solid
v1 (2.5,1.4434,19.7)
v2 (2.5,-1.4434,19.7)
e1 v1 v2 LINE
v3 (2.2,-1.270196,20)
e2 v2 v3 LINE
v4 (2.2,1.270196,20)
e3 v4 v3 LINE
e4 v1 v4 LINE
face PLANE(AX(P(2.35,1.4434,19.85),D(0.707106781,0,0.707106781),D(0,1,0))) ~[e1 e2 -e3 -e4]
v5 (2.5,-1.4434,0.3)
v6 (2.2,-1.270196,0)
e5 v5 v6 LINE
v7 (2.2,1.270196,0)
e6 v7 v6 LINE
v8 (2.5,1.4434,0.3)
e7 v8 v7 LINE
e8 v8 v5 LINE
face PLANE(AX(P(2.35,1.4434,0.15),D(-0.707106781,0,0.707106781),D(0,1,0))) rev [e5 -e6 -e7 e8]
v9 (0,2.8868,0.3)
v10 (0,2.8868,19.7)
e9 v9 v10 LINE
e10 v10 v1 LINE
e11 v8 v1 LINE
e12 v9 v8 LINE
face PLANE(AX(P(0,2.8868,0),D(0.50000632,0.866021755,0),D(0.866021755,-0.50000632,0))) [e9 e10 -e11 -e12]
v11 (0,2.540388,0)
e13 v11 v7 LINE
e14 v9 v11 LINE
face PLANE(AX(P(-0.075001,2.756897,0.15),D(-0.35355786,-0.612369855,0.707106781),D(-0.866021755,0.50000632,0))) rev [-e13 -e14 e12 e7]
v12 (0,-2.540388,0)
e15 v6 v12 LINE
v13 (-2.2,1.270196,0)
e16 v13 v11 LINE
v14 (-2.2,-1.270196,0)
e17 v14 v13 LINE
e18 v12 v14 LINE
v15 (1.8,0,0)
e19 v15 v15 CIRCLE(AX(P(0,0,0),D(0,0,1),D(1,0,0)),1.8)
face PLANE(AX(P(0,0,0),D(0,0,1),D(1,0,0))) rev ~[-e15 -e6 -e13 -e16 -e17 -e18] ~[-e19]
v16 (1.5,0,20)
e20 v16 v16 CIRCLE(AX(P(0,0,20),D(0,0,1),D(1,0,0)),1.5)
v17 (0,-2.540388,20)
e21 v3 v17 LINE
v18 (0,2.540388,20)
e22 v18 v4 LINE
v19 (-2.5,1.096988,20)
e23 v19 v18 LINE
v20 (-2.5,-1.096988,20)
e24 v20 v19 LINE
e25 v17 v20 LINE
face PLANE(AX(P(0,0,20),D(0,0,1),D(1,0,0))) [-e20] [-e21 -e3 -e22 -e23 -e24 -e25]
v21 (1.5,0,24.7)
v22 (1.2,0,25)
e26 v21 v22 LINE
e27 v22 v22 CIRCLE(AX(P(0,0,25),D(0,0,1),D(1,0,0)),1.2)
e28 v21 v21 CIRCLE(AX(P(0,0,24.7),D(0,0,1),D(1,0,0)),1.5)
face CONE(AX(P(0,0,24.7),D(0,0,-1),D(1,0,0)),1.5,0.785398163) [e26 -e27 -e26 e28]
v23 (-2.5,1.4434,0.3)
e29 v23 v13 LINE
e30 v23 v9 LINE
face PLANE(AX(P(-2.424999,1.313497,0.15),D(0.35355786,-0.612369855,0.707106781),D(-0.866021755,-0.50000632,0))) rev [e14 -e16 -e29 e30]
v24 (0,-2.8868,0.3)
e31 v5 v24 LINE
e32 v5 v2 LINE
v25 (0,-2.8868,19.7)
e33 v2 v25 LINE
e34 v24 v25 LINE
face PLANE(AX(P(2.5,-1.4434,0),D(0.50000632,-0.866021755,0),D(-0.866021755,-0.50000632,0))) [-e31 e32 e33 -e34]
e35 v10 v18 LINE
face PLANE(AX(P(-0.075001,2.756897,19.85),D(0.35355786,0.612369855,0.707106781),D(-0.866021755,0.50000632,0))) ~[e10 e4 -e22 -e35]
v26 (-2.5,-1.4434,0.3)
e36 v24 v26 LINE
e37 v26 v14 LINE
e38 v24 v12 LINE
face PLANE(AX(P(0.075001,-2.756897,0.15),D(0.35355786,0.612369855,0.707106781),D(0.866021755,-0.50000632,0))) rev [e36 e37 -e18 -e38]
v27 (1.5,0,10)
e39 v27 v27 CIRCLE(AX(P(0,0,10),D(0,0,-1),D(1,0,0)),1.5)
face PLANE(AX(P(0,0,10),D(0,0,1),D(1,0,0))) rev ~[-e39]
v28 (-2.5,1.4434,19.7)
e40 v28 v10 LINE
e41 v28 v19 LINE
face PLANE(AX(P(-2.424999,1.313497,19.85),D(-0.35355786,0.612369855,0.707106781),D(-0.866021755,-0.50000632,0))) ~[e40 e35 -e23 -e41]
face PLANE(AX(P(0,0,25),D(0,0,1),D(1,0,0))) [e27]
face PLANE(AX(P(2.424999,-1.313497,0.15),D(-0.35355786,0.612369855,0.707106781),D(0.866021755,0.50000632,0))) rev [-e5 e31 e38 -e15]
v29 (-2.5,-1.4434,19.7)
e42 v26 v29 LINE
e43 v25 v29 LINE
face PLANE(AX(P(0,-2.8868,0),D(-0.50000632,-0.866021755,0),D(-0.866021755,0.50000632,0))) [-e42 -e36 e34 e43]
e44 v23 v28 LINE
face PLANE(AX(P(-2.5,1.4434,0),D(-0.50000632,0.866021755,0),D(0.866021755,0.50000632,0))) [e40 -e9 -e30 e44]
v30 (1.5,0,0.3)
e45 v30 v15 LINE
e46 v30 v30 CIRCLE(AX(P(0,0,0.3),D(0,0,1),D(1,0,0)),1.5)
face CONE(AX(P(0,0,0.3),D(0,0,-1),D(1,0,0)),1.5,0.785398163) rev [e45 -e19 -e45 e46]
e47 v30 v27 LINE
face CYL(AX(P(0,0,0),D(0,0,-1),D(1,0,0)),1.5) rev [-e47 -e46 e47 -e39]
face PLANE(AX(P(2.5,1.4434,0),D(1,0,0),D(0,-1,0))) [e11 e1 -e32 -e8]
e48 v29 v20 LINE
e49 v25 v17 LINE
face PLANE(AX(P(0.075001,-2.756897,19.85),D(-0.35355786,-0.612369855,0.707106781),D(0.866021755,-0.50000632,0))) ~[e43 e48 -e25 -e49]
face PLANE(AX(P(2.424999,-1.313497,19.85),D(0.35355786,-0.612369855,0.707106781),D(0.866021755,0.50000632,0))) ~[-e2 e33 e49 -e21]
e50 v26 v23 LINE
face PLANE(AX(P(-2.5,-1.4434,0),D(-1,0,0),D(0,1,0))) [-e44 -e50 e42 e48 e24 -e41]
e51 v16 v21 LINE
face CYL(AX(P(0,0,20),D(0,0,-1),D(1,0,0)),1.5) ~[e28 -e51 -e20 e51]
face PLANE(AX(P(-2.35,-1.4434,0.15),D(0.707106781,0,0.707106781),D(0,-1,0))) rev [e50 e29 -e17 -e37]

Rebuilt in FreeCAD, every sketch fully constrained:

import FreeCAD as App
import Part
import Sketcher
from FreeCAD import Vector
Q = App.Units.Quantity


def edges_at(feature, points):
    """Names of the edges that pass closest to the given points."""
    edges = feature.Shape.Edges
    near = lambda p: min(range(len(edges)), key=lambda i: edges[i].distToShape(Part.Vertex(*p))[0])
    return sorted({f"Edge{near(p) + 1}" for p in points})


def add_polygon(sketch, points):
    """Adds a closed chain of lines whose ends are joined by coincident constraints."""
    first, n = sketch.GeometryCount, len(points)
    for a, b in zip(points, points[1:] + points[:1]):
        sketch.addGeometry(Part.LineSegment(App.Vector(*a, 0), App.Vector(*b, 0)), False)
    for i in range(n):
        sketch.addConstraint(Sketcher.Constraint("Coincident", first + i, 2, first + (i + 1) % n, 1))

doc = App.newDocument("Part")
body = doc.addObject("PartDesign::Body", "Body")

sketch1 = body.newObject("Sketcher::SketchObject", "Sketch")
sketch1.AttachmentSupport = (doc.getObject("XY_Plane"), [""])
sketch1.MapMode = "FlatFace"
add_polygon(sketch1, [(2.5, 1.4), (0, 2.9), (-2.5, 1.4), (-2.5, -1.4), (0, -2.9), (2.5, -1.4)])
sketch1.addGeometry(Part.Circle(Vector(0, 0, 0), Vector(0, 0, 1), 1.5), False)
sketch1.addConstraint([
    Sketcher.Constraint("Vertical", 2),
    Sketcher.Constraint("Vertical", 5),
    Sketcher.Constraint("Coincident", 6, 3, -1, 1),
    Sketcher.Constraint("Symmetric", 0, 2, 3, 2, -1, 1),
    Sketcher.Constraint("Symmetric", 1, 2, 4, 2, -1, 1),
    Sketcher.Constraint("PointOnObject", 0, 2, -2),
    Sketcher.Constraint("Parallel", 0, 3),
    Sketcher.Constraint("Horizontal", 2, 2, 4, 2),
    Sketcher.Constraint("Diameter", 6, 3.0),
    Sketcher.Constraint("DistanceX", 2, 2, 4, 2, 5.0),
    Sketcher.Constraint("Angle", 0, Q("149.9996 deg")),
    Sketcher.Constraint("DistanceY", 2, 2, 2, 1, 2.8868),
])
pad1 = body.newObject("PartDesign::Pad", "Pad")
pad1.Profile = sketch1
pad1.Length = 20
doc.recompute()

chamfer = body.newObject("PartDesign::Chamfer", "Chamfer")
chamfer.Base = (pad1, edges_at(pad1, [
    (1.25, -2.165, 20),
    (-1.25, -2.165, 20),
    (2.5, 0, 20),
    (1.25, 2.165, 20),
    (-1.25, 2.165, 20),
    (1.25, -2.165, 0),
    (2.5, 0, 0),
    (-1.25, -2.165, 0),
    (1.25, 2.165, 0),
    (-1.25, 2.165, 0),
    (-2.5, 0, 0),
    (-1.5, 0, 20),
    (-1.5, 0, 0),
]))
chamfer.Size = 0.3

sketch2 = body.newObject("Sketcher::SketchObject", "Sketch001")
sketch2.AttachmentSupport = (doc.getObject("XY_Plane"), [""])
sketch2.MapMode = "FlatFace"
sketch2.AttachmentOffset = App.Placement(Vector(0, 0, 20), App.Rotation())
sketch2.addGeometry(Part.Circle(Vector(0, 0, 0), Vector(0, 0, 1), 1.8), False)
sketch2.addConstraint([
    Sketcher.Constraint("Coincident", 0, 3, -1, 1),
    Sketcher.Constraint("Diameter", 0, 3.6),
])
pad2 = body.newObject("PartDesign::Pad", "Pad001")
pad2.Profile = sketch2
pad2.Length = 10
pad2.Reversed = True

sketch3 = body.newObject("Sketcher::SketchObject", "Sketch002")
sketch3.AttachmentSupport = (doc.getObject("XY_Plane"), [""])
sketch3.MapMode = "FlatFace"
sketch3.AttachmentOffset = App.Placement(Vector(0, 0, 20), App.Rotation())
sketch3.addGeometry(Part.Circle(Vector(0, 0, 0), Vector(0, 0, 1), 1.5), False)
sketch3.addConstraint([
    Sketcher.Constraint("Coincident", 0, 3, -1, 1),
    Sketcher.Constraint("Diameter", 0, 3.0),
])
pad3 = body.newObject("PartDesign::Pad", "Pad002")
pad3.Profile = sketch3
pad3.Length = 5
doc.recompute()

chamfer2 = body.newObject("PartDesign::Chamfer", "Chamfer001")
chamfer2.Base = (pad3, edges_at(pad3, [(-1.5, 0, 25)]))
chamfer2.Size = 0.3

doc.recompute()
